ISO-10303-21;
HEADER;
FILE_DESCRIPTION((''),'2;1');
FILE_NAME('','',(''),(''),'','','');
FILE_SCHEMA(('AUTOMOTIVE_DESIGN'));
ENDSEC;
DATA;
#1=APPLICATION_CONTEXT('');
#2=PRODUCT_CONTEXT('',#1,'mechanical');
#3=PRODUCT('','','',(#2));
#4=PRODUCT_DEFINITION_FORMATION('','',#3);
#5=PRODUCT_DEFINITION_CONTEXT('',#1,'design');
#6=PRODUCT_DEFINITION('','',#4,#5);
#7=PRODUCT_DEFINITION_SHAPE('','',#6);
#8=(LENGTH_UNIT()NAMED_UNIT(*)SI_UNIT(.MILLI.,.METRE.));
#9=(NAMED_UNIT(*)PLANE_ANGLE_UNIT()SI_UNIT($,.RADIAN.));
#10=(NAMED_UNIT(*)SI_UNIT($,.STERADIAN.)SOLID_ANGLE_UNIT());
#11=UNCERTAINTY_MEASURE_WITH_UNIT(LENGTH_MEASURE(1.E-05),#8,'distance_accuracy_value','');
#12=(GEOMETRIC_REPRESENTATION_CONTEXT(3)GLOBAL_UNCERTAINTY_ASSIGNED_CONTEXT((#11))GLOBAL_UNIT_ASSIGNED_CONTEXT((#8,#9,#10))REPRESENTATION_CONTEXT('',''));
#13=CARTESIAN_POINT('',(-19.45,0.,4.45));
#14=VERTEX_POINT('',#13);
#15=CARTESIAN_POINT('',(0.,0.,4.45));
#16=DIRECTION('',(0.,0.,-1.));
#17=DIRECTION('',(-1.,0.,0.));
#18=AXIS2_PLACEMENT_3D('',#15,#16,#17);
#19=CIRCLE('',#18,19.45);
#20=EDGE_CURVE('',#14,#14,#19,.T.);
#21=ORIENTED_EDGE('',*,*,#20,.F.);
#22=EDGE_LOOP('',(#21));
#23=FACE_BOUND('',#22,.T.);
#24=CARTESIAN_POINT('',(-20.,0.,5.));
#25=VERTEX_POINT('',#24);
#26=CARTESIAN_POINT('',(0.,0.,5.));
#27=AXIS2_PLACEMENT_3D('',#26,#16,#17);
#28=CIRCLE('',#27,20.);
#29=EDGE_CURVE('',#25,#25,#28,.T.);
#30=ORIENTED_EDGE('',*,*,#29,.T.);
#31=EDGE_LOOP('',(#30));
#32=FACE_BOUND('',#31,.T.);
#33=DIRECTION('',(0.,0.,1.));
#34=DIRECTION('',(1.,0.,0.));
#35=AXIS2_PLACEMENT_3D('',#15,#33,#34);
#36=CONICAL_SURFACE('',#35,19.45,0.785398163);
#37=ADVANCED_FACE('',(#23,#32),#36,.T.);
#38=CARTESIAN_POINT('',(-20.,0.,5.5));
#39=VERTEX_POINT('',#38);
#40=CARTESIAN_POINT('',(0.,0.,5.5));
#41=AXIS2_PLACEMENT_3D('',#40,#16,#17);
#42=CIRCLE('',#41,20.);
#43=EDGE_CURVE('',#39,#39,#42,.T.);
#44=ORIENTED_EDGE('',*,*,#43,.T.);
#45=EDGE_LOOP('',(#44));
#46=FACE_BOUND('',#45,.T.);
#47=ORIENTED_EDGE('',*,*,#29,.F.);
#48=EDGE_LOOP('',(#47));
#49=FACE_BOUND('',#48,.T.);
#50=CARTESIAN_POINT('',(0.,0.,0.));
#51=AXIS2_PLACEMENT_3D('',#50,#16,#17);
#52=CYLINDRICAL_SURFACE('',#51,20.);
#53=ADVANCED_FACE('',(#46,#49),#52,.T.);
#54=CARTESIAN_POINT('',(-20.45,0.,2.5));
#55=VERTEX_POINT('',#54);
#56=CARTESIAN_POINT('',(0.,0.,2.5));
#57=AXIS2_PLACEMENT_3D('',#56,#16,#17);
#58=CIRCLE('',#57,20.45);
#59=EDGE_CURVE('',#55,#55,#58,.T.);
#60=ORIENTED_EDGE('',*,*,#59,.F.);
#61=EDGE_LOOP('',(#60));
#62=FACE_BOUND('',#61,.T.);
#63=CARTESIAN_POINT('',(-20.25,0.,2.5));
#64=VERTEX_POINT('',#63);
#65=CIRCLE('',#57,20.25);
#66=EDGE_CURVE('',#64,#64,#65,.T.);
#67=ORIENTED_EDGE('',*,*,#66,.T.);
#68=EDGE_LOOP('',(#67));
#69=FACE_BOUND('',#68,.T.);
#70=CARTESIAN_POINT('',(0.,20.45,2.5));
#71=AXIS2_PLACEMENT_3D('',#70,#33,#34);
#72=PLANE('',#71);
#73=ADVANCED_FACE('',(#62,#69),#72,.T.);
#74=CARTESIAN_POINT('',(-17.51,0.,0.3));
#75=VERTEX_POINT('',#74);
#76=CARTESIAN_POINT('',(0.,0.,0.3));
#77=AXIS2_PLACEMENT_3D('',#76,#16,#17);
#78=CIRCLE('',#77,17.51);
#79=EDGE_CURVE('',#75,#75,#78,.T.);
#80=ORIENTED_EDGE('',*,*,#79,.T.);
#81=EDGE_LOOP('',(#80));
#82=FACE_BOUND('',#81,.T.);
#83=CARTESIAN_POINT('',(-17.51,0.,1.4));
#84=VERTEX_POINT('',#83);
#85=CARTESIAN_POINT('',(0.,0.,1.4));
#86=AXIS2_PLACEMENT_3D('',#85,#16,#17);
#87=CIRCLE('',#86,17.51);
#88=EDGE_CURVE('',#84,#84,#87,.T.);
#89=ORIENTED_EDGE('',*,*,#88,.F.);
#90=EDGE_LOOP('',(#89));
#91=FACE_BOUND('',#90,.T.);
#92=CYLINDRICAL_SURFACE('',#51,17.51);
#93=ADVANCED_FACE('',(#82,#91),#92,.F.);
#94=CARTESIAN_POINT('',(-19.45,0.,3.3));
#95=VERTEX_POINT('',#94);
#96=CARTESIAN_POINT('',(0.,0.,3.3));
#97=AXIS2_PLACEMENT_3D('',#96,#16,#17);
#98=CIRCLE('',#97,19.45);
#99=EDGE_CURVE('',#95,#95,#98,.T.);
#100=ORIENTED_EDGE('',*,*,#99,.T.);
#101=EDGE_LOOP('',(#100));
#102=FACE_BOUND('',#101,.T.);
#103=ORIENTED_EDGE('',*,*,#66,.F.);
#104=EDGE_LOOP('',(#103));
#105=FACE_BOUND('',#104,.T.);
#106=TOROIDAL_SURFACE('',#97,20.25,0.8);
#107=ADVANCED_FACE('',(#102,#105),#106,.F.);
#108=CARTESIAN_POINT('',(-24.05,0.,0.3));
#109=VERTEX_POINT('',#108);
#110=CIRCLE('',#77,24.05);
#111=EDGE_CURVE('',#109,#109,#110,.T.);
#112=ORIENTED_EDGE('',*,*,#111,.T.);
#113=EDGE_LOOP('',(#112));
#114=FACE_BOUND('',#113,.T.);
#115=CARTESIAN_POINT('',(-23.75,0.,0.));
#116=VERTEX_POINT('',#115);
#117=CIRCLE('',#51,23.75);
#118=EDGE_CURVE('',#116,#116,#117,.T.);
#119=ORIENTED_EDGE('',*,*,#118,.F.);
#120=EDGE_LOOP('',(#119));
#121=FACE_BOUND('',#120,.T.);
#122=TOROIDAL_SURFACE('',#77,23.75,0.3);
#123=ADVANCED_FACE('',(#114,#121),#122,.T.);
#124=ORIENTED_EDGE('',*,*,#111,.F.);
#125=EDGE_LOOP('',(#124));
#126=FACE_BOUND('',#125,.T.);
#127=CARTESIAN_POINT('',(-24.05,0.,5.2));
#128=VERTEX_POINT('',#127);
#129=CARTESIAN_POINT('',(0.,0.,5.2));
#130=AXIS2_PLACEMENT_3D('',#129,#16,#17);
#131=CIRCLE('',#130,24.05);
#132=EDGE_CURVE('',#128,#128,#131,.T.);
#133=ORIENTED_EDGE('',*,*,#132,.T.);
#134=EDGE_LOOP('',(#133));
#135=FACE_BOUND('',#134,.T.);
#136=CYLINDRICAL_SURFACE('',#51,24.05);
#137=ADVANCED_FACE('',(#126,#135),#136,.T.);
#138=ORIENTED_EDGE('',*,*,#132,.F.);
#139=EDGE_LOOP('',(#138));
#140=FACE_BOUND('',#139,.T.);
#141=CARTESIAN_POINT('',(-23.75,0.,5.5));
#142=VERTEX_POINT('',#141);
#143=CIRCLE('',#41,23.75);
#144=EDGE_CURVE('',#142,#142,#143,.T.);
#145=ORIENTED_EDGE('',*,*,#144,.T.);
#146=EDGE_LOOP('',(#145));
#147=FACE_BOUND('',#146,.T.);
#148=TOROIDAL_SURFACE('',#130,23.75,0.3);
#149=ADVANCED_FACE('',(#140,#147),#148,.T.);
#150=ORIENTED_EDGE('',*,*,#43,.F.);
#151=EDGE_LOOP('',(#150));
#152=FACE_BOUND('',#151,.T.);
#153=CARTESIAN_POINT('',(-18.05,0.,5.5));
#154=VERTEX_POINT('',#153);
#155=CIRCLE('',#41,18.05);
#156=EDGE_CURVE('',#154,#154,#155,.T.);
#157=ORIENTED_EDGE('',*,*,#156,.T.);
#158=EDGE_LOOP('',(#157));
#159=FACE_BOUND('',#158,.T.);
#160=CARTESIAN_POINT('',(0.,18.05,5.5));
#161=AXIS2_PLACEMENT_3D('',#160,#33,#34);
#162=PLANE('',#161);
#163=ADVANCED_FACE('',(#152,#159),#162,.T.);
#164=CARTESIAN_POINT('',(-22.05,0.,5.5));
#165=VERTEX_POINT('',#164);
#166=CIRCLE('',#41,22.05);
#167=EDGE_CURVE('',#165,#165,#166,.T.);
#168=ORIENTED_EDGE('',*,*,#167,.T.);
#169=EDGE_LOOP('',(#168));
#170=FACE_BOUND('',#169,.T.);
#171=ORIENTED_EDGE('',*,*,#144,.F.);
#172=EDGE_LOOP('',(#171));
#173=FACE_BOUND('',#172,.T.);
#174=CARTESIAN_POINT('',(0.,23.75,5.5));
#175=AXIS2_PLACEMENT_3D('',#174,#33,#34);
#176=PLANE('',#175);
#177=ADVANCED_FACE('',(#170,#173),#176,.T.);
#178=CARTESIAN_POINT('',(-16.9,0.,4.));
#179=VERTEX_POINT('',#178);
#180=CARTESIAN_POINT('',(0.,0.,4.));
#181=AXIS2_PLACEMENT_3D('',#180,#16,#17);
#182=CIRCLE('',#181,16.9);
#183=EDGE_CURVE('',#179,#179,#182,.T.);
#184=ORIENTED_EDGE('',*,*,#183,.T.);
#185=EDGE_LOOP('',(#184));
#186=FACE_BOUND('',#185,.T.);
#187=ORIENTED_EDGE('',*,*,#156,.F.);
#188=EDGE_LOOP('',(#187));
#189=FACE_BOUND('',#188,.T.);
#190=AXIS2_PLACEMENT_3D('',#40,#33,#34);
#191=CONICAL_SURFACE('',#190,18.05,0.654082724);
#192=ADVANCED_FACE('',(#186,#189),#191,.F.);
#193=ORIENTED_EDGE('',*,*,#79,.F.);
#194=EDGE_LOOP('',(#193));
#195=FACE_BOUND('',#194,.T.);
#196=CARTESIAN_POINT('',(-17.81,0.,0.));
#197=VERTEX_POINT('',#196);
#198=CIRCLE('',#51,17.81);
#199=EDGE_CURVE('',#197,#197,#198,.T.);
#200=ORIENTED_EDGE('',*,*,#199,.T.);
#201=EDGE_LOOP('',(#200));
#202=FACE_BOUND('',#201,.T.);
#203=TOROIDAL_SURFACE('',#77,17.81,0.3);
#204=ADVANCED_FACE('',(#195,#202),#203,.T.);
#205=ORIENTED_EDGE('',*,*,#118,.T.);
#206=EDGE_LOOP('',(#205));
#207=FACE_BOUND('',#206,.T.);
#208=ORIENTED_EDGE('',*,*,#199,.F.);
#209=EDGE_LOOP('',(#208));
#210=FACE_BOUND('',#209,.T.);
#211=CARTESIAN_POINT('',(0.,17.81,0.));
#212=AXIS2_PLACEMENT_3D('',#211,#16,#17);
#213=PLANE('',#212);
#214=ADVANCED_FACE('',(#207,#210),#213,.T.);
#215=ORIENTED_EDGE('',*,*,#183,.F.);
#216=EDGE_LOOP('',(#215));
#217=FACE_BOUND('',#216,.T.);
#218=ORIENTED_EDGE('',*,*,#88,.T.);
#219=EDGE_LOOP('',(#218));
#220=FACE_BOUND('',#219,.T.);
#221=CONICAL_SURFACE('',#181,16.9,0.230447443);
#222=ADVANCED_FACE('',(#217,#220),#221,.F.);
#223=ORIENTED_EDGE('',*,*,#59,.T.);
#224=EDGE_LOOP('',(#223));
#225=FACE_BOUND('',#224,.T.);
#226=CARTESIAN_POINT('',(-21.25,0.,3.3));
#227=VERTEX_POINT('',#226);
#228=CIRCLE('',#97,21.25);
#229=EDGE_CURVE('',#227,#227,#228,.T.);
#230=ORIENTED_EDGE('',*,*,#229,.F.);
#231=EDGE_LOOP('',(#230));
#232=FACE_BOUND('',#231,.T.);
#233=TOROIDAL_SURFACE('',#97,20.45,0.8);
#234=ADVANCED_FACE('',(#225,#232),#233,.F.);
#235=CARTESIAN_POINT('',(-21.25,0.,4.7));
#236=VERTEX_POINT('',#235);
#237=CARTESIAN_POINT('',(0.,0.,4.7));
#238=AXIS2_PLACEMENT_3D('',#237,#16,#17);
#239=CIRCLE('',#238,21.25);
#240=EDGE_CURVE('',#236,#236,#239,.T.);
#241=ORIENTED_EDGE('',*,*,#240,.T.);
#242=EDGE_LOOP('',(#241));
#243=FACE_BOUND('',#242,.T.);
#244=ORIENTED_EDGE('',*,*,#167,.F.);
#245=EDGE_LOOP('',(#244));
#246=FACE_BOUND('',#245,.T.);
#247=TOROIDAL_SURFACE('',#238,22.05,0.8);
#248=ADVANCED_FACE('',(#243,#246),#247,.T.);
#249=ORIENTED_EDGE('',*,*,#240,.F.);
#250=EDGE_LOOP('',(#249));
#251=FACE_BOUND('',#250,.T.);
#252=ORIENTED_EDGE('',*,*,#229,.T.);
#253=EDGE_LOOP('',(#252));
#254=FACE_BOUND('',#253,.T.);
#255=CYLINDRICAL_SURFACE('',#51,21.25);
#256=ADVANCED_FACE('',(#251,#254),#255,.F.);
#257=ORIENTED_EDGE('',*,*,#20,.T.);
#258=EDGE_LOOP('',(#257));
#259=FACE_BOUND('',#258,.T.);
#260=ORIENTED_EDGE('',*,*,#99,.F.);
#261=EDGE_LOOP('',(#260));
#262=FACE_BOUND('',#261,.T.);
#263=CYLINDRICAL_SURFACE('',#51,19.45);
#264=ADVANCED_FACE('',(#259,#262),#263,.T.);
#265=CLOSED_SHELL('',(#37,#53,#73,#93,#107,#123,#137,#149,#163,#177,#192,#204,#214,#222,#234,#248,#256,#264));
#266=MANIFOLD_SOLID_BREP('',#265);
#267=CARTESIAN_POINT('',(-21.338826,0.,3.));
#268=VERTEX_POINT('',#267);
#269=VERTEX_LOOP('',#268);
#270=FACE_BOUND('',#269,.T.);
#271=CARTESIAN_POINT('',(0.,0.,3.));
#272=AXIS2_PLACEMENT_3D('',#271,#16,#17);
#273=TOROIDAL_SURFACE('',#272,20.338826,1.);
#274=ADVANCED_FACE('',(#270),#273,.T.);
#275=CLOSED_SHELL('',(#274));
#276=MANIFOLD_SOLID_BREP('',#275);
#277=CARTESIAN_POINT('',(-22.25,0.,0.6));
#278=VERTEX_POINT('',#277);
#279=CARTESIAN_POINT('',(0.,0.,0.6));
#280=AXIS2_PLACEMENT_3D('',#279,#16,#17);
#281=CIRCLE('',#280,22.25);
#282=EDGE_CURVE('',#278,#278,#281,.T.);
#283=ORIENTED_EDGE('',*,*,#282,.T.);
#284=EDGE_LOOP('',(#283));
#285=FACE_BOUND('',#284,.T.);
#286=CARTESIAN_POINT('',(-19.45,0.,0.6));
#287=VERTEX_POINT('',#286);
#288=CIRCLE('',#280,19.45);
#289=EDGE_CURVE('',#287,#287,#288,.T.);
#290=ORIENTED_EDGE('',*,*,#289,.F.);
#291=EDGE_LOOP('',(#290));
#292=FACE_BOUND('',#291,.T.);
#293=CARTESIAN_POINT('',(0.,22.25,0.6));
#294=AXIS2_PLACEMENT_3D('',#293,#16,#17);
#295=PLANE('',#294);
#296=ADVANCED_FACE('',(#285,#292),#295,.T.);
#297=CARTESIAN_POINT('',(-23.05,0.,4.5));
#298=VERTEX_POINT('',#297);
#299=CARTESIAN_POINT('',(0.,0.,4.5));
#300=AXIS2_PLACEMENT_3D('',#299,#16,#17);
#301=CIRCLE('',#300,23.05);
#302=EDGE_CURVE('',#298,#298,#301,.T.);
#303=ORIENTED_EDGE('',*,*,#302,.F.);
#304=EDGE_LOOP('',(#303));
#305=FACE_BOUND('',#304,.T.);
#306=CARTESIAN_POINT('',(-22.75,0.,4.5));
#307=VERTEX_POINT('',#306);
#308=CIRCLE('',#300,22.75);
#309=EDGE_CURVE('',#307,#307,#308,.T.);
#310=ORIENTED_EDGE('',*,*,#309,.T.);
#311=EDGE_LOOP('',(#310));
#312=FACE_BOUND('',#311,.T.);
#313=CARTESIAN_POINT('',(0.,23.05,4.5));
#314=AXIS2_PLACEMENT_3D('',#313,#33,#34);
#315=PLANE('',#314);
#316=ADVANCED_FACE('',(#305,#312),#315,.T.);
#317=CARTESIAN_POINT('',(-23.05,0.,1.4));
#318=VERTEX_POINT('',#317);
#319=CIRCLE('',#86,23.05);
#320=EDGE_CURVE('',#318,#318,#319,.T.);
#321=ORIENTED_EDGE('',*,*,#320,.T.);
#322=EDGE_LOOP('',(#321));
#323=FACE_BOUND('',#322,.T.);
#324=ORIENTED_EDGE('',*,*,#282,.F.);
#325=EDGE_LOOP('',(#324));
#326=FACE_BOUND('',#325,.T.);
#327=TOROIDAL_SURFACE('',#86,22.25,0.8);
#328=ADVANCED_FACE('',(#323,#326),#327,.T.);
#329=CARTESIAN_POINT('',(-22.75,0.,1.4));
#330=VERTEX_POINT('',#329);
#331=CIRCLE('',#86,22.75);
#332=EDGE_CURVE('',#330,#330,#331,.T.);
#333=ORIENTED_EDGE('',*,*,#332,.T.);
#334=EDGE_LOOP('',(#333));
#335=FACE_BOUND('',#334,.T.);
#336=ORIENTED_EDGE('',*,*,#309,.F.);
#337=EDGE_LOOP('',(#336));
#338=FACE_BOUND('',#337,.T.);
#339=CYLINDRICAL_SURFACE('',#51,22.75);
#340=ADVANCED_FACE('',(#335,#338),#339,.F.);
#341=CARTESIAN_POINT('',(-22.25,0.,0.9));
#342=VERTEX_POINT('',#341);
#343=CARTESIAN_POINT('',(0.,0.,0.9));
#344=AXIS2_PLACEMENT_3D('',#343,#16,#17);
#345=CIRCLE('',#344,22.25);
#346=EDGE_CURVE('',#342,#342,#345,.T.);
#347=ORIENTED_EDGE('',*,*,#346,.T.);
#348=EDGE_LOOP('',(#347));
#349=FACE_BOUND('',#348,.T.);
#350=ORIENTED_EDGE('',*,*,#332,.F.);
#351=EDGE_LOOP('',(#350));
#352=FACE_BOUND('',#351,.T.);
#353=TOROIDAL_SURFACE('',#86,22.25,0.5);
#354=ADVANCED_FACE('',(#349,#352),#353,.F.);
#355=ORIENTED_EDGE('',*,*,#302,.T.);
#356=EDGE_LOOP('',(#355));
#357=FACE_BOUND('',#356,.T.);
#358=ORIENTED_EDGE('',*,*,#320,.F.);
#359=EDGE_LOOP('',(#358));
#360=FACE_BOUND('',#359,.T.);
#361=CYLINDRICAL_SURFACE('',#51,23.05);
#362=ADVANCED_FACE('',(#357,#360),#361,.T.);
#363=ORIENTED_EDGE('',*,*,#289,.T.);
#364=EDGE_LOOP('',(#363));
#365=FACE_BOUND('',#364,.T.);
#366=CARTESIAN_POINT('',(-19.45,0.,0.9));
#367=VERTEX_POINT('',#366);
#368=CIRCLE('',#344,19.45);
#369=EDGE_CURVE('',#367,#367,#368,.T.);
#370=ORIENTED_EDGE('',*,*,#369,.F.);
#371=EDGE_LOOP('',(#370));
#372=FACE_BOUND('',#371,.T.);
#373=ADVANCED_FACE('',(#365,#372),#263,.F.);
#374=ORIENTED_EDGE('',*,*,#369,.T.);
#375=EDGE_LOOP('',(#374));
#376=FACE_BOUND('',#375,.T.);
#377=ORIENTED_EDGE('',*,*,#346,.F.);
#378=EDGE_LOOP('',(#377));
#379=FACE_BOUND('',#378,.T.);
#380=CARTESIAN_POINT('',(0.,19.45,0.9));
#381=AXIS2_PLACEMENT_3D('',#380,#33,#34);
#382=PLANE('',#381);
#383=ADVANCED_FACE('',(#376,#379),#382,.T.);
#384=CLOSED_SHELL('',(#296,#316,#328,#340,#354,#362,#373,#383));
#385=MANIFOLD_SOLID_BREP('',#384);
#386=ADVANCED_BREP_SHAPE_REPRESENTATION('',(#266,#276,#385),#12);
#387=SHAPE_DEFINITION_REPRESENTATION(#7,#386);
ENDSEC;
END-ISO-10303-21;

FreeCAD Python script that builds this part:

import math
import FreeCAD as App
import Part
import Sketcher
from FreeCAD import Vector
Q = App.Units.Quantity

doc = App.newDocument("Part")
body = doc.addObject("PartDesign::Body", "Body")

# Sketch on YZ plane
sketch1 = body.newObject("Sketcher::SketchObject", "Sketch")
sketch1.AttachmentSupport = (doc.getObject("YZ_Plane"), [""])
sketch1.MapMode = "FlatFace"
sketch1.addGeometry([
    Part.LineSegment(Vector(17.81, 0, 0), Vector(23.75, 0, 0)),  # 0
    Part.ArcOfCircle(Part.Circle(Vector(23.75, 0.3, 0), Vector(0, 0, 1), 0.3), math.radians(-90), math.radians(0)),  # 1
    Part.LineSegment(Vector(24.05, 0.3, 0), Vector(24.05, 5.2, 0)),  # 2
    Part.ArcOfCircle(Part.Circle(Vector(23.75, 5.2, 0), Vector(0, 0, 1), 0.3), math.radians(0), math.radians(90)),  # 3
    Part.LineSegment(Vector(23.75, 5.5, 0), Vector(22.05, 5.5, 0)),  # 4
    Part.ArcOfCircle(Part.Circle(Vector(22.05, 4.7, 0), Vector(0, 0, 1), 0.8), math.radians(90), math.radians(180)),  # 5
    Part.LineSegment(Vector(21.25, 4.7, 0), Vector(21.25, 3.3, 0)),  # 6
    Part.ArcOfCircle(Part.Circle(Vector(20.45, 3.3, 0), Vector(0, 0, 1), 0.8), math.radians(-90), math.radians(0)),  # 7
    Part.LineSegment(Vector(20.45, 2.5, 0), Vector(20.25, 2.5, 0)),  # 8
    Part.ArcOfCircle(Part.Circle(Vector(20.25, 3.3, 0), Vector(0, 0, 1), 0.8), math.radians(180), math.radians(270)),  # 9
    Part.LineSegment(Vector(19.45, 3.3, 0), Vector(19.45, 4.45, 0)),  # 10
    Part.LineSegment(Vector(19.45, 4.45, 0), Vector(20, 5, 0)),  # 11
    Part.LineSegment(Vector(20, 5, 0), Vector(20, 5.5, 0)),  # 12
    Part.LineSegment(Vector(20, 5.5, 0), Vector(18.05, 5.5, 0)),  # 13
    Part.LineSegment(Vector(18.05, 5.5, 0), Vector(16.9, 4, 0)),  # 14
    Part.LineSegment(Vector(16.9, 4, 0), Vector(17.51, 1.4, 0)),  # 15
    Part.LineSegment(Vector(17.51, 1.4, 0), Vector(17.51, 0.3, 0)),  # 16
    Part.ArcOfCircle(Part.Circle(Vector(17.81, 0.3, 0), Vector(0, 0, 1), 0.3), math.radians(-180), math.radians(-90)),  # 17
], False)
sketch1.addConstraint([
    Sketcher.Constraint("Tangent", 0, 2, 1, 1),
    Sketcher.Constraint("Tangent", 1, 2, 2, 1),
    Sketcher.Constraint("Tangent", 2, 2, 3, 1),
    Sketcher.Constraint("Tangent", 3, 2, 4, 1),
    Sketcher.Constraint("Tangent", 4, 2, 5, 1),
    Sketcher.Constraint("Tangent", 5, 2, 6, 1),
    Sketcher.Constraint("Tangent", 6, 2, 7, 2),
    Sketcher.Constraint("Tangent", 7, 1, 8, 1),
    Sketcher.Constraint("Tangent", 8, 2, 9, 2),
    Sketcher.Constraint("Tangent", 9, 1, 10, 1),
    Sketcher.Constraint("Coincident", 10, 2, 11, 1),
    Sketcher.Constraint("Coincident", 11, 2, 12, 1),
    Sketcher.Constraint("Coincident", 12, 2, 13, 1),
    Sketcher.Constraint("Coincident", 13, 2, 14, 1),
    Sketcher.Constraint("Coincident", 14, 2, 15, 1),
    Sketcher.Constraint("Coincident", 15, 2, 16, 1),
    Sketcher.Constraint("Tangent", 16, 2, 17, 1),
    Sketcher.Constraint("Tangent", 17, 2, 0, 1),
    Sketcher.Constraint("Horizontal", 0),
    Sketcher.Constraint("Vertical", 2),
    Sketcher.Constraint("Horizontal", 4),
    Sketcher.Constraint("Vertical", 6),
    Sketcher.Constraint("Horizontal", 8),
    Sketcher.Constraint("Vertical", 10),
    Sketcher.Constraint("Vertical", 12),
    Sketcher.Constraint("Horizontal", 13),
    Sketcher.Constraint("Vertical", 16),
    Sketcher.Constraint("Equal", 1, 3),
    Sketcher.Constraint("Equal", 5, 7),
    Sketcher.Constraint("Equal", 7, 9),
    Sketcher.Constraint("Equal", 3, 17),
    Sketcher.Constraint("PointOnObject", 0, 2, -1),
    Sketcher.Constraint("Horizontal", 4, 2, 12, 2),
    Sketcher.Constraint("Radius", 1, 0.3),
    Sketcher.Constraint("Radius", 5, 0.8),
    Sketcher.Constraint("Angle", 11, Q("45 deg")),
    Sketcher.Constraint("DistanceX", 4, 2, 4, 1, 1.7),
    Sketcher.Constraint("DistanceX", 8, 2, 8, 1, 0.2),
    Sketcher.Constraint("DistanceY", 2, 1, 2, 2, 4.9),
    Sketcher.Constraint("DistanceY", 6, 2, 6, 1, 1.4),
    Sketcher.Constraint("DistanceY", 12, 1, 12, 2, 0.5),
    Sketcher.Constraint("DistanceY", 16, 2, 16, 1, 1.1),
    Sketcher.Constraint("DistanceX", -1, 1, 11, 2, 20.0),
    Sketcher.Constraint("DistanceY", -1, 1, 14, 2, 4.0),
    Sketcher.Constraint("DistanceX", 0, 1, 0, 2, 5.94),
    Sketcher.Constraint("DistanceX", 13, 2, 13, 1, 1.95),
    Sketcher.Constraint("DistanceY", 10, 1, 10, 2, 1.15),
    Sketcher.Constraint("DistanceX", -1, 1, 14, 2, 16.9),
])
revolution = body.newObject("PartDesign::Revolution", "Revolution")
revolution.Profile = sketch1
revolution.ReferenceAxis = (sketch1, ["V_Axis"])
revolution.Angle = 360
body2 = doc.addObject("PartDesign::Body", "Body001")

# Sketch on YZ plane
sketch2 = body2.newObject("Sketcher::SketchObject", "Sketch001")
sketch2.AttachmentSupport = (doc.getObject("YZ_Plane001"), [""])
sketch2.MapMode = "FlatFace"
sketch2.addGeometry(Part.Circle(Vector(20.338826, 3, 0), Vector(0, 0, 1), 1), False)
sketch2.addConstraint([
    Sketcher.Constraint("Diameter", 0, 2.0),
    Sketcher.Constraint("DistanceY", -1, 1, 0, 3, 3.0),
    Sketcher.Constraint("DistanceX", -1, 1, 0, 3, 20.338826),
])
revolution2 = body2.newObject("PartDesign::Revolution", "Revolution001")
revolution2.Profile = sketch2
revolution2.ReferenceAxis = (sketch2, ["V_Axis"])
revolution2.Angle = 360
body3 = doc.addObject("PartDesign::Body", "Body002")

# Sketch on YZ plane
sketch3 = body3.newObject("Sketcher::SketchObject", "Sketch002")
sketch3.AttachmentSupport = (doc.getObject("YZ_Plane002"), [""])
sketch3.MapMode = "FlatFace"
sketch3.addGeometry([
    Part.LineSegment(Vector(23.05, 1.4, 0), Vector(23.05, 4.5, 0)),  # 0
    Part.LineSegment(Vector(23.05, 4.5, 0), Vector(22.75, 4.5, 0)),  # 1
    Part.LineSegment(Vector(22.75, 4.5, 0), Vector(22.75, 1.4, 0)),  # 2
    Part.ArcOfCircle(Part.Circle(Vector(22.25, 1.4, 0), Vector(0, 0, 1), 0.5), math.radians(-90), math.radians(0)),  # 3
    Part.LineSegment(Vector(22.25, 0.9, 0), Vector(19.45, 0.9, 0)),  # 4
    Part.LineSegment(Vector(19.45, 0.9, 0), Vector(19.45, 0.6, 0)),  # 5
    Part.LineSegment(Vector(19.45, 0.6, 0), Vector(22.25, 0.6, 0)),  # 6
    Part.ArcOfCircle(Part.Circle(Vector(22.25, 1.4, 0), Vector(0, 0, 1), 0.8), math.radians(-90), math.radians(0)),  # 7
], False)
sketch3.addConstraint([
    Sketcher.Constraint("Coincident", 0, 2, 1, 1),
    Sketcher.Constraint("Coincident", 1, 2, 2, 1),
    Sketcher.Constraint("Tangent", 2, 2, 3, 2),
    Sketcher.Constraint("Tangent", 3, 1, 4, 1),
    Sketcher.Constraint("Coincident", 4, 2, 5, 1),
    Sketcher.Constraint("Coincident", 5, 2, 6, 1),
    Sketcher.Constraint("Tangent", 6, 2, 7, 1),
    Sketcher.Constraint("Tangent", 7, 2, 0, 1),
    Sketcher.Constraint("Vertical", 0),
    Sketcher.Constraint("Horizontal", 1),
    Sketcher.Constraint("Vertical", 2),
    Sketcher.Constraint("Horizontal", 4),
    Sketcher.Constraint("Vertical", 5),
    Sketcher.Constraint("Horizontal", 6),
    Sketcher.Constraint("Coincident", 7, 3, 3, 3),
    Sketcher.Constraint("Radius", 3, 0.5),
    Sketcher.Constraint("Radius", 7, 0.8),
    Sketcher.Constraint("DistanceX", 4, 2, 4, 1, 2.8),
    Sketcher.Constraint("DistanceY", 0, 1, 0, 2, 3.1),
    Sketcher.Constraint("DistanceY", -1, 1, 3, 3, 1.4),
    Sketcher.Constraint("DistanceX", -1, 1, 3, 3, 22.25),
])
revolution3 = body3.newObject("PartDesign::Revolution", "Revolution002")
revolution3.Profile = sketch3
revolution3.ReferenceAxis = (sketch3, ["V_Axis"])
revolution3.Angle = 360

doc.recompute()
